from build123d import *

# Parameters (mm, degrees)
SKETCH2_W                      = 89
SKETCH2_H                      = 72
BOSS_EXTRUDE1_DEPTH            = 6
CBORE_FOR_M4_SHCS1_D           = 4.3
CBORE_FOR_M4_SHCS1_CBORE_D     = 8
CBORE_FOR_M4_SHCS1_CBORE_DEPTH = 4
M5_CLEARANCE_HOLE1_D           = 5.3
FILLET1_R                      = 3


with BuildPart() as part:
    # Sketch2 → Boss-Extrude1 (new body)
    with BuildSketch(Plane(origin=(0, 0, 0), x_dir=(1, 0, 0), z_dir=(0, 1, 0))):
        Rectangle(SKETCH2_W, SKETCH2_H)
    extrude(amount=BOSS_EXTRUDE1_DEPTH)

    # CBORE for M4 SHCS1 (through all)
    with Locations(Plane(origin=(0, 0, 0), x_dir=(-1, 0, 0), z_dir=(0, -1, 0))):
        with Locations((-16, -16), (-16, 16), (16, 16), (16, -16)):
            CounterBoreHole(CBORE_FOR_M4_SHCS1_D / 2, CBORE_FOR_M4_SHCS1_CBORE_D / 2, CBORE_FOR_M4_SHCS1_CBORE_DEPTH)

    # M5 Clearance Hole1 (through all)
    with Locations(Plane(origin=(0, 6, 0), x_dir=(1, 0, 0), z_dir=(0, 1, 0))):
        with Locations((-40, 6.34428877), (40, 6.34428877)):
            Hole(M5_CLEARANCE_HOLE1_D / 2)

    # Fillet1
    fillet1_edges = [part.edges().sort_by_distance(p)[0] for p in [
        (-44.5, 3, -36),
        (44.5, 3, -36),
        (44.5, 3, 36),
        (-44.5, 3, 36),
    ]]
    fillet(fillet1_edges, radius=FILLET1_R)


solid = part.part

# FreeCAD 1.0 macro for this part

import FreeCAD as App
import Part
import Sketcher
from FreeCAD import Vector
Q = App.Units.Quantity


def edges_at(feature, points):
    """Names of the edges that pass closest to the given points."""
    edges = feature.Shape.Edges
    near = lambda p: min(range(len(edges)), key=lambda i: edges[i].distToShape(Part.Vertex(*p))[0])
    return sorted({f"Edge{near(p) + 1}" for p in points})


def add_polygon(sketch, points):
    """Adds a closed chain of lines whose ends are joined by coincident constraints."""
    first, n = sketch.GeometryCount, len(points)
    for a, b in zip(points, points[1:] + points[:1]):
        sketch.addGeometry(Part.LineSegment(App.Vector(*a, 0), App.Vector(*b, 0)), False)
    for i in range(n):
        sketch.addConstraint(Sketcher.Constraint("Coincident", first + i, 2, first + (i + 1) % n, 1))

doc = App.newDocument("Part")
body = doc.addObject("PartDesign::Body", "Body")

sketch1 = body.newObject("Sketcher::SketchObject", "Sketch")
sketch1.AttachmentSupport = (doc.getObject("XZ_Plane"), [""])
sketch1.MapMode = "FlatFace"
add_polygon(sketch1, [(-44.5, -36), (-44.5, 36), (44.5, 36), (44.5, -36)])
sketch1.addConstraint([
    Sketcher.Constraint("Vertical", 0),
    Sketcher.Constraint("Horizontal", 1),
    Sketcher.Constraint("Vertical", 2),
    Sketcher.Constraint("Horizontal", 3),
    Sketcher.Constraint("Symmetric", 0, 2, 2, 2, -1, 1),
    Sketcher.Constraint("DistanceX", 1, 1, 1, 2, Q("89 mm")),
    Sketcher.Constraint("DistanceY", 0, 1, 0, 2, Q("72 mm")),
])
pad1 = body.newObject("PartDesign::Pad", "Pad")
pad1.Profile = sketch1
pad1.Length = 6
pad1.Reversed = True

sketch2 = body.newObject("Sketcher::SketchObject", "Sketch001")
sketch2.AttachmentSupport = (doc.getObject("XZ_Plane"), [""])
sketch2.MapMode = "FlatFace"
sketch2.addGeometry([
    Part.Circle(Vector(16, 16, 0), Vector(0, 0, 1), 2.15),
    Part.Circle(Vector(16, -16, 0), Vector(0, 0, 1), 2.15),
    Part.Circle(Vector(-16, -16, 0), Vector(0, 0, 1), 2.15),
    Part.Circle(Vector(-16, 16, 0), Vector(0, 0, 1), 2.15),
], False)
sketch2.addConstraint([
    Sketcher.Constraint("Equal", 0, 1),
    Sketcher.Constraint("Equal", 1, 2),
    Sketcher.Constraint("Equal", 2, 3),
    Sketcher.Constraint("Symmetric", 0, 3, 2, 3, -1, 1),
    Sketcher.Constraint("Symmetric", 1, 3, 3, 3, -1, 1),
    Sketcher.Constraint("Symmetric", 1, 3, 2, 3, -2),
    Sketcher.Constraint("Diameter", 0, Q("4.3 mm")),
    Sketcher.Constraint("DistanceX", -1, 1, 0, 3, Q("16 mm")),
    Sketcher.Constraint("DistanceY", -1, 1, 0, 3, Q("16 mm")),
])
doc.recompute()
hole = body.newObject("PartDesign::Hole", "Hole")
hole.Profile = sketch2
hole.ThreadType = "None"
hole.Diameter = 4.3
hole.DepthType = "ThroughAll"
hole.HoleCutType = "Counterbore"
hole.HoleCutDiameter = 8
hole.HoleCutDepth = 4

sketch3 = body.newObject("Sketcher::SketchObject", "Sketch002")
sketch3.AttachmentSupport = (doc.getObject("XZ_Plane"), [""])
sketch3.MapMode = "FlatFace"
sketch3.AttachmentOffset = App.Placement(Vector(0, 0, -6), App.Rotation())
sketch3.addGeometry([
    Part.Circle(Vector(-40, -6.344289, 0), Vector(0, 0, 1), 2.65),
    Part.Circle(Vector(40, -6.344289, 0), Vector(0, 0, 1), 2.65),
], False)
sketch3.addConstraint([
    Sketcher.Constraint("Equal", 0, 1),
    Sketcher.Constraint("Symmetric", 0, 3, 1, 3, -2),
    Sketcher.Constraint("Diameter", 0, Q("5.3 mm")),
    Sketcher.Constraint("DistanceX", 0, 3, -1, 1, Q("40 mm")),
    Sketcher.Constraint("DistanceY", 0, 3, -1, 1, Q("6.344289 mm")),
])
doc.recompute()
hole2 = body.newObject("PartDesign::Hole", "Hole001")
hole2.Profile = sketch3
hole2.ThreadType = "None"
hole2.Diameter = 5.3
hole2.DepthType = "ThroughAll"
hole2.Reversed = True
doc.recompute()

fillet = body.newObject("PartDesign::Fillet", "Fillet")
fillet.Base = (hole2, edges_at(hole2, [
    (-44.5, 3, -36),
    (44.5, 3, -36),
    (44.5, 3, 36),
    (-44.5, 3, 36),
]))
fillet.Radius = 3

doc.recompute()
